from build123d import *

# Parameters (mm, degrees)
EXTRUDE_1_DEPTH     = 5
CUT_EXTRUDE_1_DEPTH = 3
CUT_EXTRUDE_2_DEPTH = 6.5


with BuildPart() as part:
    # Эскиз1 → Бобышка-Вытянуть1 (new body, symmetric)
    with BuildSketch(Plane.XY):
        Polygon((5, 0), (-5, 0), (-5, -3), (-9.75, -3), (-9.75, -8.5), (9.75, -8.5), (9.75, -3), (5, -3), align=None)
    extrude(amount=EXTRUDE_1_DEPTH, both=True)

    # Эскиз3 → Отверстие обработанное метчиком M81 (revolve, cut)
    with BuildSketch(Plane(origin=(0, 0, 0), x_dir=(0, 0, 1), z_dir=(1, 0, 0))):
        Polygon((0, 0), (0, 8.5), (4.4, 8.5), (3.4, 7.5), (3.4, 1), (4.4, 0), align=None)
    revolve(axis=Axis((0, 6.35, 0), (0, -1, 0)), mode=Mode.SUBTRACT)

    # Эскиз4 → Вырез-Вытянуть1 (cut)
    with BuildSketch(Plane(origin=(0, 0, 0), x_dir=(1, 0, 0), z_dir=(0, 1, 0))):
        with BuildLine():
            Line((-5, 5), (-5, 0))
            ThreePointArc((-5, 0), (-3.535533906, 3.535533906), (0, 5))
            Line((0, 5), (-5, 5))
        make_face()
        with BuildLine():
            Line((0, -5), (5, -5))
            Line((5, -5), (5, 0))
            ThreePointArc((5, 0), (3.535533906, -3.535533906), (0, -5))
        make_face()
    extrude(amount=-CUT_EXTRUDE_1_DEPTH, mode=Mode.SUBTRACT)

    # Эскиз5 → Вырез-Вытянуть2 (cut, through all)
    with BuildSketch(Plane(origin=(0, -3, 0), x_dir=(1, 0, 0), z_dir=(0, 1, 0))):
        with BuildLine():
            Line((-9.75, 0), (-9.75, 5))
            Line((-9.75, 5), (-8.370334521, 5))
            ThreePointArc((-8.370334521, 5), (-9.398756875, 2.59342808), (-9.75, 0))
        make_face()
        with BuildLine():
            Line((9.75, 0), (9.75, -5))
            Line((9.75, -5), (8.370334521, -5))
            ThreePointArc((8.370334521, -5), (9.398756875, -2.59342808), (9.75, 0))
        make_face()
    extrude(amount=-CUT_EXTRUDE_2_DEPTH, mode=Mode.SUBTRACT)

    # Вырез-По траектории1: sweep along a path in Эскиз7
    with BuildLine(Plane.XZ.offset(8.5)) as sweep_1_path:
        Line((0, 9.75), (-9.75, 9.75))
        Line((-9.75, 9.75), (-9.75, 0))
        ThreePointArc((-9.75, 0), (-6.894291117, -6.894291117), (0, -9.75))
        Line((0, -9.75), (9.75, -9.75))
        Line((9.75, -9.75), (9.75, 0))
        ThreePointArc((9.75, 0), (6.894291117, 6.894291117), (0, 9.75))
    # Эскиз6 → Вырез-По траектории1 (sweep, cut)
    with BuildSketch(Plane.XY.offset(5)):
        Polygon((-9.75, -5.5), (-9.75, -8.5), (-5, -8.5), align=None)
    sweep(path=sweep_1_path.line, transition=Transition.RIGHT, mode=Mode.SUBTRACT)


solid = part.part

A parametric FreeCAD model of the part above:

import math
import FreeCAD as App
import Part
import Sketcher

V = App.Vector
Q = App.Units.Quantity

doc = App.newDocument("Part")
body = doc.addObject("PartDesign::Body", "Body")

# Sketch on XY plane
sketch1 = body.newObject("Sketcher::SketchObject", "Sketch")
sketch1.AttachmentSupport = (doc.getObject("XY_Plane"), [""])
sketch1.MapMode = "FlatFace"
sketch1.addGeometry([
    Part.LineSegment(V(5, 0, 0), V(-5, 0, 0)),  # 0
    Part.LineSegment(V(-5, 0, 0), V(-5, -3, 0)),  # 1
    Part.LineSegment(V(-5, -3, 0), V(-9.8, -3, 0)),  # 2
    Part.LineSegment(V(-9.8, -3, 0), V(-9.8, -8.5, 0)),  # 3
    Part.LineSegment(V(-9.8, -8.5, 0), V(9.8, -8.5, 0)),  # 4
    Part.LineSegment(V(9.8, -8.5, 0), V(9.8, -3, 0)),  # 5
    Part.LineSegment(V(9.8, -3, 0), V(5, -3, 0)),  # 6
    Part.LineSegment(V(5, -3, 0), V(5, 0, 0)),  # 7
], False)
sketch1.addConstraint([
    Sketcher.Constraint("Coincident", 0, 2, 1, 1),
    Sketcher.Constraint("Coincident", 1, 2, 2, 1),
    Sketcher.Constraint("Coincident", 2, 2, 3, 1),
    Sketcher.Constraint("Coincident", 3, 2, 4, 1),
    Sketcher.Constraint("Coincident", 4, 2, 5, 1),
    Sketcher.Constraint("Coincident", 5, 2, 6, 1),
    Sketcher.Constraint("Coincident", 6, 2, 7, 1),
    Sketcher.Constraint("Coincident", 7, 2, 0, 1),
    Sketcher.Constraint("Horizontal", 0),
    Sketcher.Constraint("Vertical", 1),
    Sketcher.Constraint("Horizontal", 2),
    Sketcher.Constraint("Vertical", 3),
    Sketcher.Constraint("Horizontal", 4),
    Sketcher.Constraint("Vertical", 5),
    Sketcher.Constraint("Horizontal", 6),
    Sketcher.Constraint("Vertical", 7),
    Sketcher.Constraint("Symmetric", 0, 2, 7, 2, -1, 1),
    Sketcher.Constraint("Symmetric", 2, 2, 5, 2, -2),
    Sketcher.Constraint("DistanceX", 0, 2, 0, 1, Q("10 mm")),
    Sketcher.Constraint("DistanceY", 1, 2, 1, 1, Q("3 mm")),
    Sketcher.Constraint("DistanceX", 4, 1, 4, 2, Q("19.5 mm")),
    Sketcher.Constraint("DistanceY", 3, 2, 3, 1, Q("5.5 mm")),
])
pad1 = body.newObject("PartDesign::Pad", "Pad")
pad1.Profile = sketch1
pad1.Length = 10
pad1.Midplane = True

# Sketch on YZ plane
sketch2 = body.newObject("Sketcher::SketchObject", "Sketch001")
sketch2.AttachmentSupport = (doc.getObject("YZ_Plane"), [""])
sketch2.MapMode = "FlatFace"
sketch2.addGeometry([
    Part.LineSegment(V(-8.5, 0, 0), V(0, 0, 0)),  # 0
    Part.LineSegment(V(0, 0, 0), V(0, 4.4, 0)),  # 1
    Part.LineSegment(V(0, 4.4, 0), V(-1, 3.4, 0)),  # 2
    Part.LineSegment(V(-1, 3.4, 0), V(-7.5, 3.4, 0)),  # 3
    Part.LineSegment(V(-7.5, 3.4, 0), V(-8.5, 4.4, 0)),  # 4
    Part.LineSegment(V(-8.5, 4.4, 0), V(-8.5, 0, 0)),  # 5
], False)
sketch2.addConstraint([
    Sketcher.Constraint("Coincident", 0, 2, 1, 1),
    Sketcher.Constraint("Coincident", 1, 2, 2, 1),
    Sketcher.Constraint("Coincident", 2, 2, 3, 1),
    Sketcher.Constraint("Coincident", 3, 2, 4, 1),
    Sketcher.Constraint("Coincident", 4, 2, 5, 1),
    Sketcher.Constraint("Coincident", 5, 2, 0, 1),
    Sketcher.Constraint("Horizontal", 0),
    Sketcher.Constraint("Vertical", 1),
    Sketcher.Constraint("Horizontal", 3),
    Sketcher.Constraint("Vertical", 5),
    Sketcher.Constraint("Coincident", 0, 2, -1, 1),
    Sketcher.Constraint("Perpendicular", 2, 4),
    Sketcher.Constraint("Horizontal", 1, 2, 4, 2),
    Sketcher.Constraint("Equal", 2, 4),
    Sketcher.Constraint("DistanceX", 0, 1, 0, 2, Q("8.5 mm")),
    Sketcher.Constraint("DistanceX", 3, 2, 3, 1, Q("6.5 mm")),
    Sketcher.Constraint("DistanceY", 1, 1, 1, 2, Q("4.4 mm")),
])
groove = body.newObject("PartDesign::Groove", "Groove")
groove.Profile = sketch2
groove.ReferenceAxis = (sketch2, ["H_Axis"])
groove.Angle = 360

# Sketch on XZ plane
sketch3 = body.newObject("Sketcher::SketchObject", "Sketch002")
sketch3.AttachmentSupport = (doc.getObject("XZ_Plane"), [""])
sketch3.MapMode = "FlatFace"
sketch3.addGeometry([
    Part.LineSegment(V(-5, -5, 0), V(-5, 0, 0)),  # 0
    Part.ArcOfCircle(Part.Circle(V(0, 0, 0), V(0, 0, 1), 5), math.radians(180), math.radians(270)),  # 1
    Part.LineSegment(V(0, -5, 0), V(-5, -5, 0)),  # 2
    Part.LineSegment(V(0, 5, 0), V(5, 5, 0)),  # 3
    Part.LineSegment(V(5, 5, 0), V(5, 0, 0)),  # 4
    Part.ArcOfCircle(Part.Circle(V(0, 0, 0), V(0, 0, 1), 5), math.radians(0), math.radians(90)),  # 5
], False)
sketch3.addConstraint([
    Sketcher.Constraint("Tangent", 0, 2, 1, 1),
    Sketcher.Constraint("Tangent", 1, 2, 2, 1),
    Sketcher.Constraint("Coincident", 2, 2, 0, 1),
    Sketcher.Constraint("Coincident", 3, 2, 4, 1),
    Sketcher.Constraint("Tangent", 4, 2, 5, 1),
    Sketcher.Constraint("Tangent", 5, 2, 3, 1),
    Sketcher.Constraint("Vertical", 0),
    Sketcher.Constraint("Horizontal", 2),
    Sketcher.Constraint("Horizontal", 3),
    Sketcher.Constraint("Vertical", 4),
    Sketcher.Constraint("Coincident", 1, 3, -1, 1),
    Sketcher.Constraint("Coincident", 5, 3, -1, 1),
    Sketcher.Constraint("Equal", 1, 5),
    Sketcher.Constraint("Radius", 1, Q("5 mm")),
])
pocket1 = body.newObject("PartDesign::Pocket", "Pocket")
pocket1.Profile = sketch3
pocket1.Length = 3
pocket1.Reversed = True

# Sketch on XZ plane
sketch4 = body.newObject("Sketcher::SketchObject", "Sketch003")
sketch4.AttachmentSupport = (doc.getObject("XZ_Plane"), [""])
sketch4.MapMode = "FlatFace"
sketch4.AttachmentOffset = App.Placement(V(0, 0, 3), App.Rotation())
sketch4.addGeometry([
    Part.LineSegment(V(-9.8, -5, 0), V(-9.8, 0, 0)),  # 0
    Part.ArcOfCircle(Part.Circle(V(0, 0, 0), V(0, 0, 1), 9.7), math.radians(180), math.radians(211)),  # 1
    Part.LineSegment(V(-8.4, -5, 0), V(-9.8, -5, 0)),  # 2
    Part.LineSegment(V(9.8, 5, 0), V(9.8, 0, 0)),  # 3
    Part.ArcOfCircle(Part.Circle(V(0, 0, 0), V(0, 0, 1), 9.7), math.radians(0), math.radians(31)),  # 4
    Part.LineSegment(V(8.4, 5, 0), V(9.8, 5, 0)),  # 5
], False)
sketch4.addConstraint([
    Sketcher.Constraint("Tangent", 0, 2, 1, 1),
    Sketcher.Constraint("Coincident", 1, 2, 2, 1),
    Sketcher.Constraint("Coincident", 2, 2, 0, 1),
    Sketcher.Constraint("Tangent", 3, 2, 4, 1),
    Sketcher.Constraint("Coincident", 4, 2, 5, 1),
    Sketcher.Constraint("Coincident", 5, 2, 3, 1),
    Sketcher.Constraint("Vertical", 0),
    Sketcher.Constraint("Horizontal", 2),
    Sketcher.Constraint("Vertical", 3),
    Sketcher.Constraint("Horizontal", 5),
    Sketcher.Constraint("Coincident", 1, 3, -1, 1),
    Sketcher.Constraint("Coincident", 4, 3, -1, 1),
    Sketcher.Constraint("Equal", 1, 4),
    Sketcher.Constraint("Equal", 2, 5),
    Sketcher.Constraint("DistanceY", 0, 1, 0, 2, Q("5 mm")),
    Sketcher.Constraint("Radius", 1, Q("9.75 mm")),
])
pocket2 = body.newObject("PartDesign::Pocket", "Pocket001")
pocket2.Profile = sketch4
pocket2.Type = "ThroughAll"
pocket2.Reversed = True

# Sketch on XY plane
sketch5 = body.newObject("Sketcher::SketchObject", "Sketch004")
sketch5.AttachmentSupport = (doc.getObject("XY_Plane"), [""])
sketch5.MapMode = "FlatFace"
sketch5.AttachmentOffset = App.Placement(V(0, 0, 5), App.Rotation())
sketch5.addGeometry([
    Part.LineSegment(V(-9.8, -5.5, 0), V(-9.8, -8.5, 0)),
    Part.LineSegment(V(-9.8, -8.5, 0), V(-5, -8.5, 0)),
    Part.LineSegment(V(-5, -8.5, 0), V(-9.8, -5.5, 0)),
], False)
sketch5.addConstraint([
    Sketcher.Constraint("Coincident", 0, 2, 1, 1),
    Sketcher.Constraint("Coincident", 1, 2, 2, 1),
    Sketcher.Constraint("Coincident", 2, 2, 0, 1),
    Sketcher.Constraint("Vertical", 0),
    Sketcher.Constraint("Horizontal", 1),
    Sketcher.Constraint("DistanceY", 0, 2, 0, 1, Q("3 mm")),
    Sketcher.Constraint("DistanceX", 1, 2, -1, 1, Q("5 mm")),
    Sketcher.Constraint("DistanceX", 1, 1, 1, 2, Q("4.75 mm")),
    Sketcher.Constraint("DistanceY", 0, 2, -1, 1, Q("8.5 mm")),
])

# Sketch on XZ plane
sketch6 = body.newObject("Sketcher::SketchObject", "Sketch005")
sketch6.AttachmentSupport = (doc.getObject("XZ_Plane"), [""])
sketch6.MapMode = "FlatFace"
sketch6.AttachmentOffset = App.Placement(V(0, 0, 8.5), App.Rotation())
sketch6.addGeometry([
    Part.LineSegment(V(0, 10, 0), V(-10, 10, 0)),  # 0
    Part.LineSegment(V(-10, 10, 0), V(-10, 0, 0)),  # 1
    Part.ArcOfCircle(Part.Circle(V(0, 0, 0), V(0, 0, 1), 10), math.radians(180), math.radians(270)),  # 2
    Part.LineSegment(V(0, -10, 0), V(10, -10, 0)),  # 3
    Part.LineSegment(V(10, -10, 0), V(10, 0, 0)),  # 4
    Part.ArcOfCircle(Part.Circle(V(0, 0, 0), V(0, 0, 1), 10), math.radians(0), math.radians(90)),  # 5
], False)
sketch6.addConstraint([
    Sketcher.Constraint("Coincident", 0, 2, 1, 1),
    Sketcher.Constraint("Tangent", 1, 2, 2, 1),
    Sketcher.Constraint("Tangent", 2, 2, 3, 1),
    Sketcher.Constraint("Coincident", 3, 2, 4, 1),
    Sketcher.Constraint("Tangent", 4, 2, 5, 1),
    Sketcher.Constraint("Tangent", 5, 2, 0, 1),
    Sketcher.Constraint("Horizontal", 0),
    Sketcher.Constraint("Vertical", 1),
    Sketcher.Constraint("Horizontal", 3),
    Sketcher.Constraint("Vertical", 4),
    Sketcher.Constraint("Coincident", 2, 3, -1, 1),
    Sketcher.Constraint("Coincident", 5, 3, -1, 1),
    Sketcher.Constraint("Equal", 2, 5),
    Sketcher.Constraint("Radius", 2, Q("9.75 mm")),
])
doc.recompute()

subtractivepipe = body.newObject("PartDesign::SubtractivePipe", "SubtractivePipe")
subtractivepipe.Profile = sketch5
subtractivepipe.Spine = (sketch6, ["Edge1", "Edge2", "Edge3", "Edge4", "Edge5", "Edge6"])
subtractivepipe.Transition = "Right corner"

doc.recompute()
